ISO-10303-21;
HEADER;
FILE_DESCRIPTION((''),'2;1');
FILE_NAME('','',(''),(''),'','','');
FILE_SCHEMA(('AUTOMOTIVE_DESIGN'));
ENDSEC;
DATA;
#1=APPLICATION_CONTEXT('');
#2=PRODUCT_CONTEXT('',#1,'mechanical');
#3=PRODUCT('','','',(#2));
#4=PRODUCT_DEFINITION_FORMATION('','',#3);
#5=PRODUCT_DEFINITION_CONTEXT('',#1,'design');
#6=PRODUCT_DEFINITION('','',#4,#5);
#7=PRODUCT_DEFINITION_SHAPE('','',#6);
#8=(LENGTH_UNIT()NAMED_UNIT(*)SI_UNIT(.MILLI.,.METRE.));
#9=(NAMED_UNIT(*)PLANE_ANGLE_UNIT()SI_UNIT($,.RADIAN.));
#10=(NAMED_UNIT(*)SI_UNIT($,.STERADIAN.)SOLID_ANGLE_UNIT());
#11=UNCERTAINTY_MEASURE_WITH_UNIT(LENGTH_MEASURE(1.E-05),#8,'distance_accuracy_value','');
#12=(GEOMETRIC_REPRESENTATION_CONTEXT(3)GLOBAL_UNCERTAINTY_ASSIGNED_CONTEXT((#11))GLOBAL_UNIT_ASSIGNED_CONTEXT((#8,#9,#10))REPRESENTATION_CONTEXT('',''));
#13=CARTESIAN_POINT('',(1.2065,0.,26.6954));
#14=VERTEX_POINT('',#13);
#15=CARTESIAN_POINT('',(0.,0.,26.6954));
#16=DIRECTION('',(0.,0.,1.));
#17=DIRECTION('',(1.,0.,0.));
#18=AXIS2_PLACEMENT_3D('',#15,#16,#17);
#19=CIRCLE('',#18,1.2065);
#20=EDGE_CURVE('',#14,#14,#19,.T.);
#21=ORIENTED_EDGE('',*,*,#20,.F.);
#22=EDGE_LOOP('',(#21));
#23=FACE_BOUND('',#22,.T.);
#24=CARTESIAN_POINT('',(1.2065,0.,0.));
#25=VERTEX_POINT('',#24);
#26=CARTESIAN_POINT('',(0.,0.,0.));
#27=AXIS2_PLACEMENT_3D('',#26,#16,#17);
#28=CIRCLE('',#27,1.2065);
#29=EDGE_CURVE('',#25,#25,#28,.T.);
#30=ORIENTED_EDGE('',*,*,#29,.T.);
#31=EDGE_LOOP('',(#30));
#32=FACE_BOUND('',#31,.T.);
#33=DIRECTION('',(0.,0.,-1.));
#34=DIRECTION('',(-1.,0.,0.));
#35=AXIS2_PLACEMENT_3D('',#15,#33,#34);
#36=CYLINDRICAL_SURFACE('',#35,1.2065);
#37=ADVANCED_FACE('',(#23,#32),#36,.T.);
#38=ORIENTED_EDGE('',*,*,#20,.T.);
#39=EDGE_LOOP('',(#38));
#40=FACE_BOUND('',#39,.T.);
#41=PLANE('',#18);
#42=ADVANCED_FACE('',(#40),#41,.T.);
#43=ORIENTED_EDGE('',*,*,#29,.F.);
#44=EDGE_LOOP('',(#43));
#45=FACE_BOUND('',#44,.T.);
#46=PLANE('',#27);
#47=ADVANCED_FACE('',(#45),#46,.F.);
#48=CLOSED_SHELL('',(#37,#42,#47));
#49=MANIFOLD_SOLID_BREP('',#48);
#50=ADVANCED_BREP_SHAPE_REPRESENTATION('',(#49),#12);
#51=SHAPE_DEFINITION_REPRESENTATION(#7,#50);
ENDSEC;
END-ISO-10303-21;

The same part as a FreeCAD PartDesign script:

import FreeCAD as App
import Part
import Sketcher

V = App.Vector
Q = App.Units.Quantity

doc = App.newDocument("Part")
body = doc.addObject("PartDesign::Body", "Body")

# Sketch on XY plane
sketch1 = body.newObject("Sketcher::SketchObject", "Sketch")
sketch1.AttachmentSupport = (doc.getObject("XY_Plane"), [""])
sketch1.MapMode = "FlatFace"
sketch1.addGeometry(Part.Circle(V(0, 0, 0), V(0, 0, 1), 1.2), False)
sketch1.addConstraint(Sketcher.Constraint("Coincident", 0, 3, -1, 1))
sketch1.addConstraint(Sketcher.Constraint("Diameter", 0, Q("0.095 in")))
pad1 = body.newObject("PartDesign::Pad", "Pad")
pad1.Profile = sketch1
pad1.Length = Q("1.051 in")

doc.recompute()
